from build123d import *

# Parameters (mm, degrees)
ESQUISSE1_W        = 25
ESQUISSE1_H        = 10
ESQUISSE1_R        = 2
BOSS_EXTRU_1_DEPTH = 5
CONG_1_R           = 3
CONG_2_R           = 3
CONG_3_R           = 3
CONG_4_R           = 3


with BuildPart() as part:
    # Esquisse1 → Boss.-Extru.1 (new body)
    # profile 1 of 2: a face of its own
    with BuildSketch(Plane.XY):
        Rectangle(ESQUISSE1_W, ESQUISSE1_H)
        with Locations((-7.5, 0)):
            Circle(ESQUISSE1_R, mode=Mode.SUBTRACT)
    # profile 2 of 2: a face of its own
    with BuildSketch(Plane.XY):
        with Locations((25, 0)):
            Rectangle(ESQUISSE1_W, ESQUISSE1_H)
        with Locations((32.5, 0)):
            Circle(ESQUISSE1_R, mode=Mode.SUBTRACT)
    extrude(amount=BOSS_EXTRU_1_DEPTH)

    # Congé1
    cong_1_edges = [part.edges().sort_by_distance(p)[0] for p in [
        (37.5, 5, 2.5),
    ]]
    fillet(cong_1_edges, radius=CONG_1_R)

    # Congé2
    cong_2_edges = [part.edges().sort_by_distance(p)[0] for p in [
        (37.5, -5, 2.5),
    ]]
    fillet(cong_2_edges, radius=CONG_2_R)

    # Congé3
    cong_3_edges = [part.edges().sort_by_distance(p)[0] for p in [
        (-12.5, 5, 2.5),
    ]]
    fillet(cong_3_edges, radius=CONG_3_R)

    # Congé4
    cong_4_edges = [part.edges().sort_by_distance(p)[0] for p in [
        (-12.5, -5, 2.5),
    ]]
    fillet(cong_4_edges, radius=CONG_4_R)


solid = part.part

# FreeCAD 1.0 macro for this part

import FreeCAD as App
import Part
import Sketcher


def edges_at(feature, points):
    """Names of the edges that pass closest to the given points."""
    edges = feature.Shape.Edges
    near = lambda p: min(range(len(edges)), key=lambda i: edges[i].distToShape(Part.Vertex(*p))[0])
    return sorted({f"Edge{near(p) + 1}" for p in points})


def add_polygon(sketch, points):
    """Adds a closed chain of lines whose ends are joined by coincident constraints."""
    first, n = sketch.GeometryCount, len(points)
    for a, b in zip(points, points[1:] + points[:1]):
        sketch.addGeometry(Part.LineSegment(App.Vector(*a, 0), App.Vector(*b, 0)), False)
    for i in range(n):
        sketch.addConstraint(Sketcher.Constraint("Coincident", first + i, 2, first + (i + 1) % n, 1))

doc = App.newDocument("Part")
body = doc.addObject("PartDesign::Body", "Body")

# Sketch on XY plane
sketch1 = body.newObject("Sketcher::SketchObject", "Sketch")
sketch1.AttachmentSupport = (doc.getObject("XY_Plane"), [""])
sketch1.MapMode = "FlatFace"
add_polygon(sketch1, [(-12.5, 5), (-12.5, -5), (37.5, -5), (37.5, 5)])  # lines 0-3
sketch1.addGeometry(Part.Circle(App.Vector(-7.5, 0, 0), App.Vector(0, 0, 1), 2), False)  # 4
sketch1.addGeometry(Part.Circle(App.Vector(32.5, 0, 0), App.Vector(0, 0, 1), 2), False)  # 5
sketch1.addConstraint([
    Sketcher.Constraint("Vertical", 0),
    Sketcher.Constraint("Horizontal", 1),
    Sketcher.Constraint("Vertical", 2),
    Sketcher.Constraint("Horizontal", 3),
    Sketcher.Constraint("Equal", 4, 5),
    Sketcher.Constraint("PointOnObject", 4, 3, -1),
    Sketcher.Constraint("PointOnObject", 5, 3, -1),
    Sketcher.Constraint("Diameter", 4, 4.0),
    Sketcher.Constraint("DistanceX", 1, 1, 1, 2, 50.0),
    Sketcher.Constraint("DistanceY", 0, 2, 0, 1, 10.0),
    Sketcher.Constraint("DistanceY", 0, 2, -1, 1, 5.0),
    Sketcher.Constraint("DistanceX", 4, 3, 5, 3, 40.0),
    Sketcher.Constraint("DistanceX", 0, 2, 4, 3, 5.0),
    Sketcher.Constraint("DistanceX", 4, 3, -1, 1, 7.5),
])
pad1 = body.newObject("PartDesign::Pad", "Pad")
pad1.Profile = sketch1
pad1.Length = 5
doc.recompute()

fillet = body.newObject("PartDesign::Fillet", "Fillet")
fillet.Base = (pad1, edges_at(pad1, [(37.5, 5, 2.5)]))
fillet.Radius = 3
doc.recompute()

fillet2 = body.newObject("PartDesign::Fillet", "Fillet001")
fillet2.Base = (fillet, edges_at(fillet, [(37.5, -5, 2.5)]))
fillet2.Radius = 3
doc.recompute()

fillet3 = body.newObject("PartDesign::Fillet", "Fillet002")
fillet3.Base = (fillet2, edges_at(fillet2, [(-12.5, 5, 2.5)]))
fillet3.Radius = 3
doc.recompute()

fillet4 = body.newObject("PartDesign::Fillet", "Fillet003")
fillet4.Base = (fillet3, edges_at(fillet3, [(-12.5, -5, 2.5)]))
fillet4.Radius = 3

doc.recompute()
